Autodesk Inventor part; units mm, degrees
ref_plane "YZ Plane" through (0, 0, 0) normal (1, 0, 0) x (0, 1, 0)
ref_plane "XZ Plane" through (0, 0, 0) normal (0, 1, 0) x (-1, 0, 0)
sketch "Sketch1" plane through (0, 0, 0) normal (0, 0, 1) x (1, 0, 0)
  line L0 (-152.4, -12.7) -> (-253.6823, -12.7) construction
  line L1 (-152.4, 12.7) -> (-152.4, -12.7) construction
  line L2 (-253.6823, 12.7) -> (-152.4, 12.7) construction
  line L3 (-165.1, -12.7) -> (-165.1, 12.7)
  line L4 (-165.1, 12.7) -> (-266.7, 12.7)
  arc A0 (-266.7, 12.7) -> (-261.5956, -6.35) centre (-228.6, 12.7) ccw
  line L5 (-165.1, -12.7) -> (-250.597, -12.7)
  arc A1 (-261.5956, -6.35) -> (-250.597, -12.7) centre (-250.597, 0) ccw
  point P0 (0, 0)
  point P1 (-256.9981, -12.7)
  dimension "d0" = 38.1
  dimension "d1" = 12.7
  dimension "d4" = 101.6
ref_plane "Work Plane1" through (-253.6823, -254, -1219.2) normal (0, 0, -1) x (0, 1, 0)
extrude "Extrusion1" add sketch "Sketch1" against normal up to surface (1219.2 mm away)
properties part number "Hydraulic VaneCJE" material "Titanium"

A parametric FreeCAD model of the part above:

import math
import FreeCAD as App
import Part
import Sketcher
Q = App.Units.Quantity

doc = App.newDocument("Part")
body = doc.addObject("PartDesign::Body", "Body")

# Sketch on XY plane
sketch1 = body.newObject("Sketcher::SketchObject", "Sketch")
sketch1.AttachmentSupport = (doc.getObject("XY_Plane"), [""])
sketch1.MapMode = "FlatFace"
sketch1.addGeometry([
    Part.LineSegment(App.Vector(-251, -13, 0), App.Vector(-165, -13, 0)),  # 0
    Part.LineSegment(App.Vector(-165, -13, 0), App.Vector(-165, 13, 0)),  # 1
    Part.LineSegment(App.Vector(-165, 13, 0), App.Vector(-267, 13, 0)),  # 2
    Part.ArcOfCircle(Part.Circle(App.Vector(-229, 13, 0), App.Vector(0, 0, 1), 38), math.radians(180), math.radians(210)),  # 3
    Part.ArcOfCircle(Part.Circle(App.Vector(-251, 0, 0), App.Vector(0, 0, 1), 13), math.radians(-150), math.radians(-90)),  # 4
], False)
sketch1.addConstraint([
    Sketcher.Constraint("Coincident", 0, 2, 1, 1),
    Sketcher.Constraint("Coincident", 1, 2, 2, 1),
    Sketcher.Constraint("Coincident", 2, 2, 3, 1),
    Sketcher.Constraint("Tangent", 3, 2, 4, 1),
    Sketcher.Constraint("Tangent", 4, 2, 0, 1),
    Sketcher.Constraint("Horizontal", 0),
    Sketcher.Constraint("Vertical", 1),
    Sketcher.Constraint("Horizontal", 2),
    Sketcher.Constraint("PointOnObject", 4, 3, -1),
    Sketcher.Constraint("Horizontal", 3, 3, 1, 2),
    Sketcher.Constraint("Radius", 3, Q("1.5 in")),
    Sketcher.Constraint("Radius", 4, Q("0.5 in")),
    Sketcher.Constraint("DistanceX", 2, 2, 2, 1, Q("4 in")),
    Sketcher.Constraint("DistanceY", -1, 1, 3, 3, Q("0.5 in")),
    Sketcher.Constraint("DistanceX", 3, 3, -1, 1, Q("9 in")),
])
pad1 = body.newObject("PartDesign::Pad", "Pad")
pad1.Profile = sketch1
pad1.Length = Q("48 in")
pad1.Reversed = True

doc.recompute()
